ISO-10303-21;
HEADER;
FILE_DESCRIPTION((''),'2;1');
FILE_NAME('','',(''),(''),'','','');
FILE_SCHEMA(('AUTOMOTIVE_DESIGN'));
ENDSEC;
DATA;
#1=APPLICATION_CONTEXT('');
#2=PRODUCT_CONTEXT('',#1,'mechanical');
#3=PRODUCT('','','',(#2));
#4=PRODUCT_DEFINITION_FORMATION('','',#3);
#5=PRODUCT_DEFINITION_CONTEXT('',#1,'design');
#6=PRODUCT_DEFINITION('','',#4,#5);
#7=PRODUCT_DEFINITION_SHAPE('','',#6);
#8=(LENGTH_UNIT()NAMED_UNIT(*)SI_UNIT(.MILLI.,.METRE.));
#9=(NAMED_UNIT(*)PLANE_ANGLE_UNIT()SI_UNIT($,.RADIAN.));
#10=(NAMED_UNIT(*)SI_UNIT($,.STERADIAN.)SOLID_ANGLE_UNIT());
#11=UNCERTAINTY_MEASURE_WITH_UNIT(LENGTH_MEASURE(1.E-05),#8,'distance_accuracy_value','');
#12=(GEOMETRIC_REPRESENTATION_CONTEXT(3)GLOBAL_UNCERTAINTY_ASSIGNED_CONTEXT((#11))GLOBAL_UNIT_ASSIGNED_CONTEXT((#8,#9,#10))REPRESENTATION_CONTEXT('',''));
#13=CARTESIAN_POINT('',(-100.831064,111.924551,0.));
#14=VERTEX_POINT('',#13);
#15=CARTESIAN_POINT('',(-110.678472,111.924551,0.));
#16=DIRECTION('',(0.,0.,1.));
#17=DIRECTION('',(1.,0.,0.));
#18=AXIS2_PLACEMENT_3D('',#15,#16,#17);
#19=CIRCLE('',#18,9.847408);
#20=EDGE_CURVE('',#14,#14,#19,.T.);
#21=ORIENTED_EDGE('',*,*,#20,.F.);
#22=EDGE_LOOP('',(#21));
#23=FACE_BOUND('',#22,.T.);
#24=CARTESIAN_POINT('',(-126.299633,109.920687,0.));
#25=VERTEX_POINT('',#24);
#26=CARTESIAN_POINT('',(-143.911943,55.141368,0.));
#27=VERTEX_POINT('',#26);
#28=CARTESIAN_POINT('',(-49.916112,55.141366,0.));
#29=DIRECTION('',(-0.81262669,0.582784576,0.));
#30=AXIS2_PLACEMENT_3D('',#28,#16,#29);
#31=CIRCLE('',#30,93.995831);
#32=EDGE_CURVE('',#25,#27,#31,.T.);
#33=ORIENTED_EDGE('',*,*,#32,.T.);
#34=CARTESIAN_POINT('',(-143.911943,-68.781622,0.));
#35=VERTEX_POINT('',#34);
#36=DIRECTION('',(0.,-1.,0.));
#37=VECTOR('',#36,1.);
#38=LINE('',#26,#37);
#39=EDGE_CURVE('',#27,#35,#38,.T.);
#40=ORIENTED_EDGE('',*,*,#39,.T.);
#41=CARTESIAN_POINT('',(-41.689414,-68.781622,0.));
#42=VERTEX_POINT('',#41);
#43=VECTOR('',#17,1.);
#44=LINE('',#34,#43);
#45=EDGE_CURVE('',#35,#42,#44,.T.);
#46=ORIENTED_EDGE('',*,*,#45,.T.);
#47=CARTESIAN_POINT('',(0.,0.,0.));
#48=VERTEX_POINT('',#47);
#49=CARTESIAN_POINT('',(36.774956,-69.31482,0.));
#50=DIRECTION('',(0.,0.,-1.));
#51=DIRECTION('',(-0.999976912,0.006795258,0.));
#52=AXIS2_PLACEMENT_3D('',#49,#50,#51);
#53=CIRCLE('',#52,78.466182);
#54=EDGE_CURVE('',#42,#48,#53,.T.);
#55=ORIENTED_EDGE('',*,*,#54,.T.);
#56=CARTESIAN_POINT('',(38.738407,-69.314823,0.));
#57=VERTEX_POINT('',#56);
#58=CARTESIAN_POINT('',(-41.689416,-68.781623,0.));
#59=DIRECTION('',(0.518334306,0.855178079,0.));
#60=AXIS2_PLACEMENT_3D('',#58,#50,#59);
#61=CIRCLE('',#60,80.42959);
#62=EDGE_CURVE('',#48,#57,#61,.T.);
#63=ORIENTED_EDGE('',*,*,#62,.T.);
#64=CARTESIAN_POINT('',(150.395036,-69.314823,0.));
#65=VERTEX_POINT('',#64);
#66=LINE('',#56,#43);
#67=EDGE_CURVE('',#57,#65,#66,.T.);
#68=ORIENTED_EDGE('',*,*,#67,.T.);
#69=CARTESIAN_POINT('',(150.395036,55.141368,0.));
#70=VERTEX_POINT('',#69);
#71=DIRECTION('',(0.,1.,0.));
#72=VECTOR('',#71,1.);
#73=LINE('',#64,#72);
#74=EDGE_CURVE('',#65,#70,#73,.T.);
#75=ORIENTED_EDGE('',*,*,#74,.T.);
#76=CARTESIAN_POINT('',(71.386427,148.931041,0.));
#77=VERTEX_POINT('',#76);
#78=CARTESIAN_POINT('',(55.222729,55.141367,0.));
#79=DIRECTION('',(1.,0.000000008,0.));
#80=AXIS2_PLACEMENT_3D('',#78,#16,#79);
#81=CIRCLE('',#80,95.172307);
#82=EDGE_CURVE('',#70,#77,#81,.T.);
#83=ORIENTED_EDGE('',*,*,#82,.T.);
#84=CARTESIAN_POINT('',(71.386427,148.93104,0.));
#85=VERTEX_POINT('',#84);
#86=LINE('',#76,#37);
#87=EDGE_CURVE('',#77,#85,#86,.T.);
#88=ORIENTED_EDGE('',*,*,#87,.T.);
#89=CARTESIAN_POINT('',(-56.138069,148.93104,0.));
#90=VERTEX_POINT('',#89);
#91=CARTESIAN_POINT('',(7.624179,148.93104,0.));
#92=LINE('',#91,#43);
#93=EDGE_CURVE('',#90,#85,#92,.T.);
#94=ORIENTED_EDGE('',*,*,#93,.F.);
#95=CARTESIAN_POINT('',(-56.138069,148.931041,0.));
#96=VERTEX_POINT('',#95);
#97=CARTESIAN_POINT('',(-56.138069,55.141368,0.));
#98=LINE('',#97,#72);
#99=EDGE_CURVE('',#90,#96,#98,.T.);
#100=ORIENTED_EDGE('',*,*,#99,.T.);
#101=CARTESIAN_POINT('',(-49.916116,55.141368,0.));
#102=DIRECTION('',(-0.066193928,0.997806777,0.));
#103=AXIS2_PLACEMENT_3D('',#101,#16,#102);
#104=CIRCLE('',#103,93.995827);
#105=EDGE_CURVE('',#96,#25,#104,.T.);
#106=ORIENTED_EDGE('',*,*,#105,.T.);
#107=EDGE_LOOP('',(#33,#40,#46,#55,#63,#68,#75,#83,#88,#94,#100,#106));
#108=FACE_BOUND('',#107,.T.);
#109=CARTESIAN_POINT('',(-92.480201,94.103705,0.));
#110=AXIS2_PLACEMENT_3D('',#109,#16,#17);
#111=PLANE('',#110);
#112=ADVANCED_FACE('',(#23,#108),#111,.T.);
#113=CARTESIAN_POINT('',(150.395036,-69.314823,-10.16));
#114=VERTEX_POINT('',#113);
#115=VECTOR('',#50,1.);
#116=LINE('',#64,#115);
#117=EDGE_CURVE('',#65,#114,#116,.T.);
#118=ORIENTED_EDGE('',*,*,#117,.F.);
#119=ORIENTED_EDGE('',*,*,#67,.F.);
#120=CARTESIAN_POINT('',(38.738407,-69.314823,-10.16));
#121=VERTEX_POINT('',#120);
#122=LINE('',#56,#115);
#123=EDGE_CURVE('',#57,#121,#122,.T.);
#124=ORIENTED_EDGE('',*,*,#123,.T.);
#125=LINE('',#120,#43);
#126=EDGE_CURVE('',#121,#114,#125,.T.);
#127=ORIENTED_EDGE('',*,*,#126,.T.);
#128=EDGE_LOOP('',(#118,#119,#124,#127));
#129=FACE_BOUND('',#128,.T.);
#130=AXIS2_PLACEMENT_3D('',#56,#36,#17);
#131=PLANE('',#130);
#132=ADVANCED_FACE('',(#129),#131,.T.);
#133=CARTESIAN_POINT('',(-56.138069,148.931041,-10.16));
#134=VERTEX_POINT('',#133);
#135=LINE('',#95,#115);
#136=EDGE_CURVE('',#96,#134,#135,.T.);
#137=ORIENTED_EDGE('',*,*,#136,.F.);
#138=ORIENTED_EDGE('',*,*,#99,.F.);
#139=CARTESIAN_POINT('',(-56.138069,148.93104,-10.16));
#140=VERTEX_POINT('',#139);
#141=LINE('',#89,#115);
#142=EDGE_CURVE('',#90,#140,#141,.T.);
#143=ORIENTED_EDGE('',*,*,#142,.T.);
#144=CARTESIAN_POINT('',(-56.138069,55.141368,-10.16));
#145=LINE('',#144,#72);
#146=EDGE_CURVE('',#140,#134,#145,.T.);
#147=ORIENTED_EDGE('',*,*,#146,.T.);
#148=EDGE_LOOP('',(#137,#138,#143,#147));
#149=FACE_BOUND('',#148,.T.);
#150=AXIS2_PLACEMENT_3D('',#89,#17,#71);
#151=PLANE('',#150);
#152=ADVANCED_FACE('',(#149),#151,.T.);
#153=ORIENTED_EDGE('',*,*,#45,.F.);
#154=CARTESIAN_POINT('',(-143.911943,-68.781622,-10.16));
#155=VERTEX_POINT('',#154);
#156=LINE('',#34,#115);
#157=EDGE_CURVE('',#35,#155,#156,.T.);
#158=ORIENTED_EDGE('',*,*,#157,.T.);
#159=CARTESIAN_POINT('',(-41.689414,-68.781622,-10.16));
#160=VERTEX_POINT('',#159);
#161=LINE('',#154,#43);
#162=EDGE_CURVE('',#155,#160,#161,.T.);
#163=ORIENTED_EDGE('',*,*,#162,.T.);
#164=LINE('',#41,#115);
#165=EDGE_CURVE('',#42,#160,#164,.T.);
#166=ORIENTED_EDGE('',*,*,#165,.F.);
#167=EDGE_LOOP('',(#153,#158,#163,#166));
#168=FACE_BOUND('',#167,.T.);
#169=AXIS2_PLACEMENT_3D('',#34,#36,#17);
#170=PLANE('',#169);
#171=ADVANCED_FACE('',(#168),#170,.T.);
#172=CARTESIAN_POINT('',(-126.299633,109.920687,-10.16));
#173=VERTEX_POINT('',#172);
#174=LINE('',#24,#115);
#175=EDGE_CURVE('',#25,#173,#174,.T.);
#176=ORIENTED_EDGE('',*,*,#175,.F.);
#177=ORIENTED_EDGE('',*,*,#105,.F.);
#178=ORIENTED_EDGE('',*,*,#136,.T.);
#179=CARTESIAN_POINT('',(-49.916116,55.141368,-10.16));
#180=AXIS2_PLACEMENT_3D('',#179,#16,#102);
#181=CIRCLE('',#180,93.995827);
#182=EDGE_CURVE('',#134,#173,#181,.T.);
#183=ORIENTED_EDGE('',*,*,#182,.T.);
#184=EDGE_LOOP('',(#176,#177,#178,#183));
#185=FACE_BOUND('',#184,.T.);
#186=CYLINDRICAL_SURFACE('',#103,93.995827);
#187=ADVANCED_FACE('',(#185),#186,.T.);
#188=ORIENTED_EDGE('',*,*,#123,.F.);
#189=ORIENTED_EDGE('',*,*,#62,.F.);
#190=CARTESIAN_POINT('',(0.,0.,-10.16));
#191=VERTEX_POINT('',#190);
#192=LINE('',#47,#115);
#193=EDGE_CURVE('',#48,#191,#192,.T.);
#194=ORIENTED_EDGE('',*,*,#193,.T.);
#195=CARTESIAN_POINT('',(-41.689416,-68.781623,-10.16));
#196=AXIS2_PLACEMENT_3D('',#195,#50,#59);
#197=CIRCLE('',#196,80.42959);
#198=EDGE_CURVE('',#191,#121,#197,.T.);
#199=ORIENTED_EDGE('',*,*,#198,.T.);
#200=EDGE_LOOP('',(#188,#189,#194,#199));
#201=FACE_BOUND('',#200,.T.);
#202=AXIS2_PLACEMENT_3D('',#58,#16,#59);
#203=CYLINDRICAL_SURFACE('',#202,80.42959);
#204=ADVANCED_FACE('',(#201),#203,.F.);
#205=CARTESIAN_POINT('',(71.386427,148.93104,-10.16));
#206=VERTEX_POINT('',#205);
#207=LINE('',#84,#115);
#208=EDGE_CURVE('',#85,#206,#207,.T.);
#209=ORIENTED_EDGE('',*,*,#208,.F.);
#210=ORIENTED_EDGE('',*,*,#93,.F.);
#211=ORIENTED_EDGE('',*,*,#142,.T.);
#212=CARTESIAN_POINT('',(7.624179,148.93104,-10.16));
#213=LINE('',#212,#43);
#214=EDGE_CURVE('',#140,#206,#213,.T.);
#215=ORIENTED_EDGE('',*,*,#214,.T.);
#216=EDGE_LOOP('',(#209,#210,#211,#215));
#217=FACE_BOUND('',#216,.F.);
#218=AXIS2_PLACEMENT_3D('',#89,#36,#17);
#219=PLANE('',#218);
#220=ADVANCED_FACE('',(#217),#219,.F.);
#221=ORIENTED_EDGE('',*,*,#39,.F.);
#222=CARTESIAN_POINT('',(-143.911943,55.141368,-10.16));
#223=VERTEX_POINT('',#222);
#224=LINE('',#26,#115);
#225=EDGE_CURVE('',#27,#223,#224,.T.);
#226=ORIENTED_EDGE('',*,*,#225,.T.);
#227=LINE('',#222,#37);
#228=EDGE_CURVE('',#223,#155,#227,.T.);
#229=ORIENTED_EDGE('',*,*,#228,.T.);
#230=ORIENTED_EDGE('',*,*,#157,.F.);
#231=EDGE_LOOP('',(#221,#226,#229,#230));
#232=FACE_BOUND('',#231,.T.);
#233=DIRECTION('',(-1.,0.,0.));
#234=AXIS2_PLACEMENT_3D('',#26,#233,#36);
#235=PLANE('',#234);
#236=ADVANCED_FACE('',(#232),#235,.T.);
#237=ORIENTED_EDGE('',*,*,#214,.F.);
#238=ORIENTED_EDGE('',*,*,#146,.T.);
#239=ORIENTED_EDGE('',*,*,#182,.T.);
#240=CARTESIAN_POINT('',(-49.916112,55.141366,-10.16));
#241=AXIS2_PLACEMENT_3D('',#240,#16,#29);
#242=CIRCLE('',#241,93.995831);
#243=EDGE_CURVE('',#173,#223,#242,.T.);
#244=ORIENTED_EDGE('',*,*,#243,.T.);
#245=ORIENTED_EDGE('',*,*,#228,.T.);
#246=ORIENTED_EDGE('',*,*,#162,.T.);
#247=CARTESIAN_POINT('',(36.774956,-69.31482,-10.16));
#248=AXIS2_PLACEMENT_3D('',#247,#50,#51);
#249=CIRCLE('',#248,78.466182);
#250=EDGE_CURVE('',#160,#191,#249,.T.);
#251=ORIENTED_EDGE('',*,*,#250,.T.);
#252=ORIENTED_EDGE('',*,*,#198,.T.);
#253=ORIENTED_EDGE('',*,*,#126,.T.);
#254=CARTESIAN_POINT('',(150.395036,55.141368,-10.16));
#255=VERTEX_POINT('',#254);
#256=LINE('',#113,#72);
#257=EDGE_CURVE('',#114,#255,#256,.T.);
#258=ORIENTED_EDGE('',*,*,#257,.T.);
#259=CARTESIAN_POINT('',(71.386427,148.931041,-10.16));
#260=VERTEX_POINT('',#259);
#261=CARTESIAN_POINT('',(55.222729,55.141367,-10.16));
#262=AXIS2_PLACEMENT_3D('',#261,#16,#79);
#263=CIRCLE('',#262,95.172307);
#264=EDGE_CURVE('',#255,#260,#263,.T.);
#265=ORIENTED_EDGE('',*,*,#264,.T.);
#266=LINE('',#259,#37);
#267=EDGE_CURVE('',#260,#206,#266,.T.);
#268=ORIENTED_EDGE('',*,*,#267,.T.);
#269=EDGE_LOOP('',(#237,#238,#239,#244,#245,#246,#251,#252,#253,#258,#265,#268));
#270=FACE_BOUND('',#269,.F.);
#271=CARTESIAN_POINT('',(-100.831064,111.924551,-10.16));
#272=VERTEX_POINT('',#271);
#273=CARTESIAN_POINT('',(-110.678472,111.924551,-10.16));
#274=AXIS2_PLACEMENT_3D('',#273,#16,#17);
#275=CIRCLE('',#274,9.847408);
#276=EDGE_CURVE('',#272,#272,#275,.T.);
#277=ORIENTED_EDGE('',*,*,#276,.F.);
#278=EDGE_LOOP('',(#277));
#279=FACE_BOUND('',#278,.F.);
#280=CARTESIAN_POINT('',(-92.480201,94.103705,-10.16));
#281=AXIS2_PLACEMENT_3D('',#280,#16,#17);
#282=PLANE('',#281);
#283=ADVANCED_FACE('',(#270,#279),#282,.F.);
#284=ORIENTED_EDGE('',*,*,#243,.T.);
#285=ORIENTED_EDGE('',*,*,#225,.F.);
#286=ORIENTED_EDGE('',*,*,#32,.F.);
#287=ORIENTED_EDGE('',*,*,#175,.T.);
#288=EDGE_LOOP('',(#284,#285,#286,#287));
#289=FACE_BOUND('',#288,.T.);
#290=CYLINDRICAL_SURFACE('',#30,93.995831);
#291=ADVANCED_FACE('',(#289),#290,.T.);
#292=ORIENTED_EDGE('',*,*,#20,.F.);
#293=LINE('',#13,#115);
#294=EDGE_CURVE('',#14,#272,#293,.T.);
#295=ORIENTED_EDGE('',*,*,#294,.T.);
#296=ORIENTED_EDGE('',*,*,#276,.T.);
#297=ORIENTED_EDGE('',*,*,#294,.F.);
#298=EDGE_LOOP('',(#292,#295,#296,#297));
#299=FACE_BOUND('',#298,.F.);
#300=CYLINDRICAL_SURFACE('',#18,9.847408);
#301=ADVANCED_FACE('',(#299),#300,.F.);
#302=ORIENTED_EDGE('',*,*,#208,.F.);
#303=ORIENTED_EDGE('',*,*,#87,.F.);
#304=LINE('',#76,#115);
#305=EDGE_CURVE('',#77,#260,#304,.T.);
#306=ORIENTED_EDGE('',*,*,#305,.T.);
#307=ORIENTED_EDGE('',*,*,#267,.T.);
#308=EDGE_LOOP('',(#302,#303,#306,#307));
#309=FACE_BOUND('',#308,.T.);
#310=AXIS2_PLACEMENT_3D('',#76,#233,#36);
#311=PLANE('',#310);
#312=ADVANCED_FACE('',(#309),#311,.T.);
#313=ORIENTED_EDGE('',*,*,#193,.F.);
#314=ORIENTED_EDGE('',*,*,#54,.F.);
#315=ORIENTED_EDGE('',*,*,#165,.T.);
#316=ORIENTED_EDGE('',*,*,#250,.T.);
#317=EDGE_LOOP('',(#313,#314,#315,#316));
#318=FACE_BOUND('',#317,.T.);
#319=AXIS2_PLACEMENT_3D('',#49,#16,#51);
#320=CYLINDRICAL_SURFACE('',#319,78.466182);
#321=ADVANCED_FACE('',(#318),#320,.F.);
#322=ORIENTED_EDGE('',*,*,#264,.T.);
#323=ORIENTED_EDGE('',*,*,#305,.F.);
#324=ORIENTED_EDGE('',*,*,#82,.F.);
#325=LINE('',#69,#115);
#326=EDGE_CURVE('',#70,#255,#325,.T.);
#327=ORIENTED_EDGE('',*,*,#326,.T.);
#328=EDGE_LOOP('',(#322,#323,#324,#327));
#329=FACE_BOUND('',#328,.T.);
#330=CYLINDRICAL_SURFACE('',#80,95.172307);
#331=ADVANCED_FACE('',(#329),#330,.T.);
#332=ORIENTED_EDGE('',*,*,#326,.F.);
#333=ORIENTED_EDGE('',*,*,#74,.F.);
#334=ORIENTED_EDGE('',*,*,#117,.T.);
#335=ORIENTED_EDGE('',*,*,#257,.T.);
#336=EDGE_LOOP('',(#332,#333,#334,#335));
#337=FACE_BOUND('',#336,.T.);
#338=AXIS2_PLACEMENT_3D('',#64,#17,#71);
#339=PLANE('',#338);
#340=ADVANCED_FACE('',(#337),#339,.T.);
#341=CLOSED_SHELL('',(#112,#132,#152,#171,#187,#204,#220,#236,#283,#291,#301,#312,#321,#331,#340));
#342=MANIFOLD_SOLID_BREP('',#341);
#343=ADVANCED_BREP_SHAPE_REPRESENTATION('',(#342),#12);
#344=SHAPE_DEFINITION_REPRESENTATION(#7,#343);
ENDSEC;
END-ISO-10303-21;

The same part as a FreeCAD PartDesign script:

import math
import FreeCAD as App
import Part
import Sketcher
Q = App.Units.Quantity

doc = App.newDocument("Part")
body = doc.addObject("PartDesign::Body", "Body")

sketch1 = body.newObject("Sketcher::SketchObject", "Sketch")
sketch1.AttachmentSupport = (doc.getObject("XY_Plane"), [""])
sketch1.MapMode = "FlatFace"
sketch1.addGeometry([
    Part.ArcOfCircle(Part.Circle(App.Vector(-49.916116, 55.141368, 0), App.Vector(0, 0, 1), 93.995827), math.radians(93.795408), math.radians(144.353365)),
    Part.ArcOfCircle(Part.Circle(App.Vector(-49.916112, 55.141366, 0), App.Vector(0, 0, 1), 93.995831), math.radians(144.353366), math.radians(179.999999)),
    Part.LineSegment(App.Vector(-143.911943, 55.141368, 0), App.Vector(-143.911943, -68.781622, 0)),
    Part.LineSegment(App.Vector(-143.911943, -68.781622, 0), App.Vector(-41.689414, -68.781622, 0)),
    Part.ArcOfCircle(Part.Circle(App.Vector(36.774956, -69.31482, 0), App.Vector(0, 0, 1), 78.466182), math.radians(117.948172), math.radians(179.610657)),
    Part.ArcOfCircle(Part.Circle(App.Vector(-41.689416, -68.781623, 0), App.Vector(0, 0, 1), 80.42959), math.radians(-0.37984), math.radians(58.779414)),
    Part.LineSegment(App.Vector(38.738407, -69.314823, 0), App.Vector(150.395036, -69.314823, 0)),
    Part.LineSegment(App.Vector(150.395036, -69.314823, 0), App.Vector(150.395036, 55.141368, 0)),
    Part.ArcOfCircle(Part.Circle(App.Vector(55.222729, 55.141367, 0), App.Vector(0, 0, 1), 95.172307), math.radians(0), math.radians(80.221707)),
    Part.LineSegment(App.Vector(71.386427, 148.93104, 0), App.Vector(71.386427, 148.931041, 0)),
    Part.LineSegment(App.Vector(71.386427, 148.93104, 0), App.Vector(-56.138069, 148.93104, 0)),
    Part.LineSegment(App.Vector(-56.138069, 148.931041, 0), App.Vector(-56.138069, 148.93104, 0)),
    Part.Circle(App.Vector(-110.678472, 111.924551, 0), App.Vector(0, 0, 1), 9.847408),
], False)
sketch1.addConstraint([
    Sketcher.Constraint("Coincident", 0, 2, 1, 1),
    Sketcher.Constraint("Coincident", 1, 2, 2, 1),
    Sketcher.Constraint("Coincident", 2, 2, 3, 1),
    Sketcher.Constraint("Coincident", 3, 2, 4, 2),
    Sketcher.Constraint("Coincident", 4, 1, 5, 2),
    Sketcher.Constraint("Coincident", 5, 1, 6, 1),
    Sketcher.Constraint("Coincident", 6, 2, 7, 1),
    Sketcher.Constraint("Coincident", 7, 2, 8, 1),
    Sketcher.Constraint("Coincident", 8, 2, 9, 1),
    Sketcher.Constraint("Coincident", 9, 2, 10, 1),
    Sketcher.Constraint("Coincident", 10, 2, 11, 1),
    Sketcher.Constraint("Coincident", 11, 2, 0, 1),
    Sketcher.Constraint("Vertical", 2),
    Sketcher.Constraint("Horizontal", 3),
    Sketcher.Constraint("Horizontal", 6),
    Sketcher.Constraint("Vertical", 7),
    Sketcher.Constraint("Horizontal", 9),
    Sketcher.Constraint("Horizontal", 10),
    Sketcher.Constraint("Horizontal", 11),
    Sketcher.Constraint("Coincident", 4, 1, -1, 1),
    Sketcher.Constraint("Coincident", 1, 3, 0, 3),
    Sketcher.Constraint("Coincident", 3, 2, 5, 3),
    Sketcher.Constraint("Radius", 1, 93.995831),
    Sketcher.Constraint("Radius", 4, 78.466182),
    Sketcher.Constraint("Radius", 5, 80.42959),
    Sketcher.Constraint("Diameter", 12, 19.694816),
    Sketcher.Constraint("Radius", 8, 95.172307),
    Sketcher.Constraint("DistanceX", 3, 1, 3, 2, 102.222529),
    Sketcher.Constraint("DistanceX", 6, 1, 6, 2, 111.656629),
    Sketcher.Constraint("DistanceY", 2, 2, 2, 1, 123.92299),
    Sketcher.Constraint("DistanceY", 7, 1, 7, 2, 124.456191),
    Sketcher.Constraint("DistanceX", 12, 3, 8, 3, 165.901201),
    Sketcher.Constraint("DistanceY", 5, 1, 3, 2, 0.533201),
    Sketcher.Constraint("DistanceX", 8, 3, 8, 2, 16.163698),
    Sketcher.Constraint("DistanceX", 8, 3, 9, 2, 16.163698),
    Sketcher.Constraint("DistanceX", 10, 2, 10, 1, 127.524496),
    Sketcher.Constraint("DistanceX", 1, 3, -1, 1, 49.916112),
    Sketcher.Constraint("DistanceY", -1, 1, 12, 3, 111.924551),
    Sketcher.Constraint("DistanceY", -1, 1, 8, 2, 148.931041),
    Sketcher.Constraint("DistanceX", 11, 2, -1, 1, 56.138069),
    Sketcher.Constraint("DistanceX", 0, 2, 12, 3, 15.621161),
])
pad1 = body.newObject("PartDesign::Pad", "Pad")
pad1.Profile = sketch1
pad1.Length = Q("0.4 in")
pad1.Reversed = True

doc.recompute()
